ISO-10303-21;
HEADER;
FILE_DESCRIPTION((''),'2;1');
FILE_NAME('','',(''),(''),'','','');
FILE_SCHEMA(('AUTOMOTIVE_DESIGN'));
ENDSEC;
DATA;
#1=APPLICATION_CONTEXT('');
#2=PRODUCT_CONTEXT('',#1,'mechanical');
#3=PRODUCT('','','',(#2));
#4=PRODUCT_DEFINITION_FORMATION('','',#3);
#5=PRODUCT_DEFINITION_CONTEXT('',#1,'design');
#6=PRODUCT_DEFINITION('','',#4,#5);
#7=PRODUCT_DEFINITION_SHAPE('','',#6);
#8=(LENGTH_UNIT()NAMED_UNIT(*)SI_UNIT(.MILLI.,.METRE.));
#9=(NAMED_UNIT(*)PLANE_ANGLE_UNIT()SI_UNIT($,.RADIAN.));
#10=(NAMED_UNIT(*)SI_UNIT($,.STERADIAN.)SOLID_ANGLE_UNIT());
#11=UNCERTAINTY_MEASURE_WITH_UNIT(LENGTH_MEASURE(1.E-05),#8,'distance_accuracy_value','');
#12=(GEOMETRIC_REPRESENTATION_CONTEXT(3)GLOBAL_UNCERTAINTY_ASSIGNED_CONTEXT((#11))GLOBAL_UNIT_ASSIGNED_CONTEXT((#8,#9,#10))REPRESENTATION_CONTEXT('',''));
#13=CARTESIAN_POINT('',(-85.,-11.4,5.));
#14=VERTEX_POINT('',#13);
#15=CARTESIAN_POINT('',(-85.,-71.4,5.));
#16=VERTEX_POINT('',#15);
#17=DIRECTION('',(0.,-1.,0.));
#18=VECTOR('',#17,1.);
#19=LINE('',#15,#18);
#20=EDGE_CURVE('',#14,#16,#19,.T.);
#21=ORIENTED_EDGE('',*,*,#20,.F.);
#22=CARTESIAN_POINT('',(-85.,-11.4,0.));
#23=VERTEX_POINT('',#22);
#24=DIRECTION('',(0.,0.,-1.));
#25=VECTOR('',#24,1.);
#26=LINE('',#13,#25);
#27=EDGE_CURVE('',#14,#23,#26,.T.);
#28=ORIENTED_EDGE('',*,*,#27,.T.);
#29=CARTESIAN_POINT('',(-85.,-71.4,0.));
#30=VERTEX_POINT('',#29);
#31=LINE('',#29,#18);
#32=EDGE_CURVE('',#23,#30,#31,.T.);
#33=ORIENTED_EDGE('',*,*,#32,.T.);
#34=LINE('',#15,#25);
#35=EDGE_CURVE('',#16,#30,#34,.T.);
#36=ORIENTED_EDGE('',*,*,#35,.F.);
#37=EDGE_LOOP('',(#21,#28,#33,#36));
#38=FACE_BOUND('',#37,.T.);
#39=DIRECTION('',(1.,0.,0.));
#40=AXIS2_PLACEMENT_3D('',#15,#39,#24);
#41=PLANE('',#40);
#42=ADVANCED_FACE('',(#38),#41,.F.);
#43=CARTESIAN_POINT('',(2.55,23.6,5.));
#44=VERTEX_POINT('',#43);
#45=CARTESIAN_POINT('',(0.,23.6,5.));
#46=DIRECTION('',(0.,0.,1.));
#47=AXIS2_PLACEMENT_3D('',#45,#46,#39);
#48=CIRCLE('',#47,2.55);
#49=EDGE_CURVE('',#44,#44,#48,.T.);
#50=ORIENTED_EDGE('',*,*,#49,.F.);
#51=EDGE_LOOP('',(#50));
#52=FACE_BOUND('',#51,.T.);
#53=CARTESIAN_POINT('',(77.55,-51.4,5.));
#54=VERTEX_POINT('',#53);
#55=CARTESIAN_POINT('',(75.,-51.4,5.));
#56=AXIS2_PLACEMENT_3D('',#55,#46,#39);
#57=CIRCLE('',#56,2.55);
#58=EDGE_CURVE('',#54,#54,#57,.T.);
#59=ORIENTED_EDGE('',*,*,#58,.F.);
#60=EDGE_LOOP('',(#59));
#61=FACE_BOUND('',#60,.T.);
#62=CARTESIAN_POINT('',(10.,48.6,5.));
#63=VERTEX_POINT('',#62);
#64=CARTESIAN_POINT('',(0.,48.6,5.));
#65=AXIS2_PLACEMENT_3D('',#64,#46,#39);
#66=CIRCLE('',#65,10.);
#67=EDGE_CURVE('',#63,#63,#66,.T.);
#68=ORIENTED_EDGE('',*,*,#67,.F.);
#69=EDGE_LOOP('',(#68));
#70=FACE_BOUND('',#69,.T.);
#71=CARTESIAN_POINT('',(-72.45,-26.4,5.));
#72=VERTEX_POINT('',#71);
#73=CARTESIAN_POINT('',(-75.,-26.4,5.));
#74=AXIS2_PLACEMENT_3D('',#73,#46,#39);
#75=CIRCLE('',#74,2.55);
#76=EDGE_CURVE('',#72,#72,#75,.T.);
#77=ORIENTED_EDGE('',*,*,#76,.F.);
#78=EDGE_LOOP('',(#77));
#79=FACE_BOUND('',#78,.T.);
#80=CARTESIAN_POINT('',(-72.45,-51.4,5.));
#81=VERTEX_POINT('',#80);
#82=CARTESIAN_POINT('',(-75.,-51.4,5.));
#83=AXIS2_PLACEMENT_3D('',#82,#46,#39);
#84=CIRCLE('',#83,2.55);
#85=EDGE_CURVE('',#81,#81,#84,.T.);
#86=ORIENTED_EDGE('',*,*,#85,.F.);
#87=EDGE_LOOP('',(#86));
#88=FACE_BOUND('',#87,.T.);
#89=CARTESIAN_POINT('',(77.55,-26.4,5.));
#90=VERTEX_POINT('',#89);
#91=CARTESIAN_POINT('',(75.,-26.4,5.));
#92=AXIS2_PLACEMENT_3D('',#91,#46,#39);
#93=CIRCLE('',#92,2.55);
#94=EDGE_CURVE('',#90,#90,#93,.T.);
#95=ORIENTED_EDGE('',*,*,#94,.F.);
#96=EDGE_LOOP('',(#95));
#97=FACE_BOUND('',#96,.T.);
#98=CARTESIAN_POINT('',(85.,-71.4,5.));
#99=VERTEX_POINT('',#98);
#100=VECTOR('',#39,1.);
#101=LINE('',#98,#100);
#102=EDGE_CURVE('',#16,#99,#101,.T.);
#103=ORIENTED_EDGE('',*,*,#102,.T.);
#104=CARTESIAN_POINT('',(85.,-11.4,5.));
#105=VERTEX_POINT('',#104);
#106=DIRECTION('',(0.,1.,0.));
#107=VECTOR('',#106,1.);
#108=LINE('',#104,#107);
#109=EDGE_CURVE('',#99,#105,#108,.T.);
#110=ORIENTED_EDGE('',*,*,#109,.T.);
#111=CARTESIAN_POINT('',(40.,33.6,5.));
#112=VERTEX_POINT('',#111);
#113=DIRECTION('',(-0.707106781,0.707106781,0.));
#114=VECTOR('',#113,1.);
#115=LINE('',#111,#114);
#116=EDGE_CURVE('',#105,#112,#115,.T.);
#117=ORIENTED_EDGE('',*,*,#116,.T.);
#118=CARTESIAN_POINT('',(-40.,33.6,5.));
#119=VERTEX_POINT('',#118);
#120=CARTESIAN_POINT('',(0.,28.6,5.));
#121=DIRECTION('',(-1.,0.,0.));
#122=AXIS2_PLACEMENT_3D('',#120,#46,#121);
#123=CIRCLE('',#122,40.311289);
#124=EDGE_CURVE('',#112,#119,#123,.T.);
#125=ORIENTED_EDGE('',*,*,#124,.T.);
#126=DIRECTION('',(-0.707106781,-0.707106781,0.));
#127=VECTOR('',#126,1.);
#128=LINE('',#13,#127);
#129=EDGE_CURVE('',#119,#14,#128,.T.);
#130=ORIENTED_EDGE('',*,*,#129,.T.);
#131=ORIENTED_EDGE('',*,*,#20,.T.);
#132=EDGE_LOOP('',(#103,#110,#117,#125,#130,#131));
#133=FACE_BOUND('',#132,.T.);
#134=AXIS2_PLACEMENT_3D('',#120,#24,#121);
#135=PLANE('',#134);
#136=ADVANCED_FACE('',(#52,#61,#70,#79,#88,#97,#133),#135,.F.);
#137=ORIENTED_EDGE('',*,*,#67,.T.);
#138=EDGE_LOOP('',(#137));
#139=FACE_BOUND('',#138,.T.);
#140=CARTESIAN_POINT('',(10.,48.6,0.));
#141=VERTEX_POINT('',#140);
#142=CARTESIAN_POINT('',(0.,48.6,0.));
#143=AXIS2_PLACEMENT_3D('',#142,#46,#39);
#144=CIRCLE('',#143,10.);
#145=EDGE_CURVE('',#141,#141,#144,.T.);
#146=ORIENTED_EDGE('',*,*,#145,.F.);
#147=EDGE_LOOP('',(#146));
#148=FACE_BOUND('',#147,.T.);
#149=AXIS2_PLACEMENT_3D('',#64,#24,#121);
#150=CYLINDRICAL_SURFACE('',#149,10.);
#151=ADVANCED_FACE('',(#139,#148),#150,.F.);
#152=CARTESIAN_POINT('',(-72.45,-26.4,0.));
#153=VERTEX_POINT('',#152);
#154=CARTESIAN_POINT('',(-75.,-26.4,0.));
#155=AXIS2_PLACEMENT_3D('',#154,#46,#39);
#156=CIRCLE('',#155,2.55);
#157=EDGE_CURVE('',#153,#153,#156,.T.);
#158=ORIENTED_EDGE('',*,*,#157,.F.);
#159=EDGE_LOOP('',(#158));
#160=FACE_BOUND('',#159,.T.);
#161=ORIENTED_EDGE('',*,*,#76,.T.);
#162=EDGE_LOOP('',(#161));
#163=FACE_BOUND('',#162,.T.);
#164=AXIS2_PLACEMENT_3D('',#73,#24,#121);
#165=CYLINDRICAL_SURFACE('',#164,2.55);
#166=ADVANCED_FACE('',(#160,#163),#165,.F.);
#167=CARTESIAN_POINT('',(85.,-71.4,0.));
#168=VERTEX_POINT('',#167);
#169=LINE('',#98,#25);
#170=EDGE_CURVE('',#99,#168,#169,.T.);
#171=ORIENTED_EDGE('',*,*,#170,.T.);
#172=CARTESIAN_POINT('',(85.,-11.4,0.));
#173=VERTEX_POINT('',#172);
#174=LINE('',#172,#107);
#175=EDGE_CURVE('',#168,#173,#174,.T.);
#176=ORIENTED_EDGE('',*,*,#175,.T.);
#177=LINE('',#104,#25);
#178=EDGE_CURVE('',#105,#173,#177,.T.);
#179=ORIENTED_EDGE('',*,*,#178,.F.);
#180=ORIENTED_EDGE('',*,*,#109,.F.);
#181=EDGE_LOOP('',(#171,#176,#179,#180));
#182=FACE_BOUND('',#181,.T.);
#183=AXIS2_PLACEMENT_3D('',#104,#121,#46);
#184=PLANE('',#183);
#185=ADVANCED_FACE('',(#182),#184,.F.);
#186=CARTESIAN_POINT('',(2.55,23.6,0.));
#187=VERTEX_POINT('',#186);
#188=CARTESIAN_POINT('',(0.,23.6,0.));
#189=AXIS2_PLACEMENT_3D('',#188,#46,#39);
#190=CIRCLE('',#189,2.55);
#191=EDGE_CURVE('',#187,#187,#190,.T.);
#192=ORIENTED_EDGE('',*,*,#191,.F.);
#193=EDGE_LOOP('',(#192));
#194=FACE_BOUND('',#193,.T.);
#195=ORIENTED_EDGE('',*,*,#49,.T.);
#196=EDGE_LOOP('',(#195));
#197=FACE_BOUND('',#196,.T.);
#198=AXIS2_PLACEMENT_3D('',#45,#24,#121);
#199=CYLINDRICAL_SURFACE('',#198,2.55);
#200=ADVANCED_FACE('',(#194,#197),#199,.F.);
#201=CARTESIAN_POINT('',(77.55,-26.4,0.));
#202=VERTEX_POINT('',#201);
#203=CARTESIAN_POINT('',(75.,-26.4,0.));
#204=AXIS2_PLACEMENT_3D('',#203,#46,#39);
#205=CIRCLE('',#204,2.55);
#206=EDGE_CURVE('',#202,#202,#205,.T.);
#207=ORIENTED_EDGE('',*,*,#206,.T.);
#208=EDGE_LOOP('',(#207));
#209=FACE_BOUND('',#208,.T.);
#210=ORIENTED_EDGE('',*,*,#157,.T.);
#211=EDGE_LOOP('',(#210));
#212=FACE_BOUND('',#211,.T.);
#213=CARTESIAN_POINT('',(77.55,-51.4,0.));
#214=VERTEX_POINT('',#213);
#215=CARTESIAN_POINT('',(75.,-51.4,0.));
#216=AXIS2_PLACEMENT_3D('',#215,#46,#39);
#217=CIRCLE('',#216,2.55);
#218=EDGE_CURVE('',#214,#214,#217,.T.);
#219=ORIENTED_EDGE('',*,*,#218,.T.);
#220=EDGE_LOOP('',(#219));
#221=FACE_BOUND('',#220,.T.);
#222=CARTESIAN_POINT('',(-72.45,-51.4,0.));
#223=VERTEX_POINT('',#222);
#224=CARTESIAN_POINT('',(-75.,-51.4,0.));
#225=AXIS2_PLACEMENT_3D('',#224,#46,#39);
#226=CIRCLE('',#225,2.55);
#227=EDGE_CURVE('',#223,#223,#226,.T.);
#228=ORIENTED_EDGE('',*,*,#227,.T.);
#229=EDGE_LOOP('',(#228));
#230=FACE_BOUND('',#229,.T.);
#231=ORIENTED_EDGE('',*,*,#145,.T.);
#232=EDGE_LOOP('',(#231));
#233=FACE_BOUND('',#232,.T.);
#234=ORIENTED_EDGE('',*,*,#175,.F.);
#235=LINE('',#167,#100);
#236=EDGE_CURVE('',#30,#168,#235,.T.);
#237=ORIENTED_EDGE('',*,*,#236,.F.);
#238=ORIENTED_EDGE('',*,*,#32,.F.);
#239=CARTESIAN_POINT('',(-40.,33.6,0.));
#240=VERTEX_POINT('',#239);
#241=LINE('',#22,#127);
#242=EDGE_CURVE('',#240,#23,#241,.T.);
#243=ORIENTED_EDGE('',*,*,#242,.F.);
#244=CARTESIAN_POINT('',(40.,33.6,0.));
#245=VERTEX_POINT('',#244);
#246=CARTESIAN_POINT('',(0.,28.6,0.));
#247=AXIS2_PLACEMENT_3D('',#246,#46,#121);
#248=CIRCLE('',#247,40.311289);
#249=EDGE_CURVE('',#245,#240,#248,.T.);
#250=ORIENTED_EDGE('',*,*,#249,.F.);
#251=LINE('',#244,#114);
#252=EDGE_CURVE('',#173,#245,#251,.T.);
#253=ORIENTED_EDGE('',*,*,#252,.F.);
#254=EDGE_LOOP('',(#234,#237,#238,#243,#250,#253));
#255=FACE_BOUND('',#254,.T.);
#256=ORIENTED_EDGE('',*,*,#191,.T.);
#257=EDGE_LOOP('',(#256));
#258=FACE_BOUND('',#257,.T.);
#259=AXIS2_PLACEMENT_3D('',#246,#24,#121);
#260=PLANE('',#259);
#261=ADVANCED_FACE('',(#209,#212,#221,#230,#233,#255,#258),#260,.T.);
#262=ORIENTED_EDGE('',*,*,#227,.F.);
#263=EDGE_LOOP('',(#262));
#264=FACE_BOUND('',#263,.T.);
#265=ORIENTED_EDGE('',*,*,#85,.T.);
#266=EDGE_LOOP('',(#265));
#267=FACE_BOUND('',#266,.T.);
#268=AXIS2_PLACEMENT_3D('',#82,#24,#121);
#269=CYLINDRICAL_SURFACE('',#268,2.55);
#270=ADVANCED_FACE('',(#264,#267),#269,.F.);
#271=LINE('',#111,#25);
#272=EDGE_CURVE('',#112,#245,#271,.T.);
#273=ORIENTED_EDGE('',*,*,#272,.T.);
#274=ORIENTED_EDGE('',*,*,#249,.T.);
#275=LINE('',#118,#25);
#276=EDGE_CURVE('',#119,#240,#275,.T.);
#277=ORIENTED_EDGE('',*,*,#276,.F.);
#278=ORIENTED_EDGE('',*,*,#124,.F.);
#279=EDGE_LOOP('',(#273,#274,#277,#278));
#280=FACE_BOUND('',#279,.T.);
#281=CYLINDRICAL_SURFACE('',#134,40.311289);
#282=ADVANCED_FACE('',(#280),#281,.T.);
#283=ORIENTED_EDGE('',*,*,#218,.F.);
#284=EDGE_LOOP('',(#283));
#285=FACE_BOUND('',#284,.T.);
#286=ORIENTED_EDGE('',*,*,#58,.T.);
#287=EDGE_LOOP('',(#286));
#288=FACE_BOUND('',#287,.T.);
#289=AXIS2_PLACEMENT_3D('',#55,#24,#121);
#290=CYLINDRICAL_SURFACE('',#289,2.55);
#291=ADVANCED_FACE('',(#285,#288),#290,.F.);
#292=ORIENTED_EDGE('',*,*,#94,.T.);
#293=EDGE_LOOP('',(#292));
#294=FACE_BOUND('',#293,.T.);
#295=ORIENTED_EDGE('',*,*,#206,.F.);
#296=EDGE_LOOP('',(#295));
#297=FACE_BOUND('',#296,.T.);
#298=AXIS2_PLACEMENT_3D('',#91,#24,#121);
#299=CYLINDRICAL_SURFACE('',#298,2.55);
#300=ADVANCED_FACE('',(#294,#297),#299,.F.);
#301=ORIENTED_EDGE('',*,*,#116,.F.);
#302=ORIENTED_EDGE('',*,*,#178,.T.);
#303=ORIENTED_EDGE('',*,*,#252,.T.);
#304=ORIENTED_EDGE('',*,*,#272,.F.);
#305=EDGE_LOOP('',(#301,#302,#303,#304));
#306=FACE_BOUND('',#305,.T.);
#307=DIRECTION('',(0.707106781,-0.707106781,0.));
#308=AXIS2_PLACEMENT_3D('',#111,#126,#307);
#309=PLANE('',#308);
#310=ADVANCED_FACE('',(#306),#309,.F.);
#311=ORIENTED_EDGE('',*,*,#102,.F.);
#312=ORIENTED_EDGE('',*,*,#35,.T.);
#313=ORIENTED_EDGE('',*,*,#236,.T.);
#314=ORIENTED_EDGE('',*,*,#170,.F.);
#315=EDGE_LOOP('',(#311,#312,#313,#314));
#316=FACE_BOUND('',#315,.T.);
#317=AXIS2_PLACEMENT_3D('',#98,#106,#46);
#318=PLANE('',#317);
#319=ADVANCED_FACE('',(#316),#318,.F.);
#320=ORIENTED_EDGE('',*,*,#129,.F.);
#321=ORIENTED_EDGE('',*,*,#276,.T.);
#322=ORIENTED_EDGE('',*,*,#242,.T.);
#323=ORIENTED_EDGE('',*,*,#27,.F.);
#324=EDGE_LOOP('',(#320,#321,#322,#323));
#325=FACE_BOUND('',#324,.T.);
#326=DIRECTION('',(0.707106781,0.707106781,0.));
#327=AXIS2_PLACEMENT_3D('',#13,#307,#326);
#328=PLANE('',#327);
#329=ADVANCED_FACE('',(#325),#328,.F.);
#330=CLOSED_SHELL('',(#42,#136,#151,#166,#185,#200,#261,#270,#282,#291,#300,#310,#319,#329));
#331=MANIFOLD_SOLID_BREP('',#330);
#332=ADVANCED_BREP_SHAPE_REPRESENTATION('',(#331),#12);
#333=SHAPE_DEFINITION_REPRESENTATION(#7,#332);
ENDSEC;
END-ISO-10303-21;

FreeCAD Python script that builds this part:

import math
import FreeCAD as App
import Part
import Sketcher

V = App.Vector
Q = App.Units.Quantity

doc = App.newDocument("Part")
body = doc.addObject("PartDesign::Body", "Body")

# Sketch on XY plane
sketch1 = doc.addObject("Sketcher::SketchObject", "Sketch")
body.addObject(sketch1)
sketch1.AttachmentSupport = (doc.XY_Plane, [""])
sketch1.MapMode = "FlatFace"
sketch1.addGeometry(Part.LineSegment(V(-85, -11.4, 0), V(-85, -71.4, 0)), False)
sketch1.addGeometry(Part.LineSegment(V(-85, -71.4, 0), V(85, -71.4, 0)), False)
sketch1.addGeometry(Part.LineSegment(V(85, -71.4, 0), V(85, -11.4, 0)), False)
sketch1.addGeometry(Part.LineSegment(V(85, -11.4, 0), V(40, 33.6, 0)), False)
sketch1.addGeometry(Part.ArcOfCircle(Part.Circle(V(0, 28.6, 0), V(0, 0, 1), 40.311289), math.radians(7.125016), math.radians(172.874984)), False)
sketch1.addGeometry(Part.LineSegment(V(-40, 33.6, 0), V(-85, -11.4, 0)), False)
sketch1.addGeometry(Part.Circle(V(75, -51.4, 0), V(0, 0, 1), 2.55), False)
sketch1.addGeometry(Part.Circle(V(75, -26.4, 0), V(0, 0, 1), 2.55), False)
sketch1.addGeometry(Part.Circle(V(-75, -51.4, 0), V(0, 0, 1), 2.55), False)
sketch1.addGeometry(Part.Circle(V(-75, -26.4, 0), V(0, 0, 1), 2.55), False)
sketch1.addGeometry(Part.Circle(V(0, 23.6, 0), V(0, 0, 1), 2.55), False)
sketch1.addGeometry(Part.Circle(V(0, 48.6, 0), V(0, 0, 1), 10), False)
sketch1.addConstraint(Sketcher.Constraint("Coincident", 0, 2, 1, 1))
sketch1.addConstraint(Sketcher.Constraint("Coincident", 1, 2, 2, 1))
sketch1.addConstraint(Sketcher.Constraint("Coincident", 2, 2, 3, 1))
sketch1.addConstraint(Sketcher.Constraint("Coincident", 3, 2, 4, 1))
sketch1.addConstraint(Sketcher.Constraint("Coincident", 4, 2, 5, 1))
sketch1.addConstraint(Sketcher.Constraint("Coincident", 5, 2, 0, 1))
sketch1.addConstraint(Sketcher.Constraint("Vertical", 0))
sketch1.addConstraint(Sketcher.Constraint("Horizontal", 1))
sketch1.addConstraint(Sketcher.Constraint("Vertical", 2))
sketch1.addConstraint(Sketcher.Constraint("Equal", 6, 7))
sketch1.addConstraint(Sketcher.Constraint("Equal", 7, 8))
sketch1.addConstraint(Sketcher.Constraint("Equal", 8, 9))
sketch1.addConstraint(Sketcher.Constraint("Equal", 9, 10))
sketch1.addConstraint(Sketcher.Constraint("Symmetric", 6, 3, 8, 3, -2))
sketch1.addConstraint(Sketcher.Constraint("Symmetric", 7, 3, 9, 3, -2))
sketch1.addConstraint(Sketcher.Constraint("Symmetric", 3, 2, 4, 2, -2))
sketch1.addConstraint(Sketcher.Constraint("Symmetric", 2, 2, 5, 2, -2))
sketch1.addConstraint(Sketcher.Constraint("PointOnObject", 10, 3, -2))
sketch1.addConstraint(Sketcher.Constraint("PointOnObject", 11, 3, -2))
sketch1.addConstraint(Sketcher.Constraint("Perpendicular", 3, 5))
sketch1.addConstraint(Sketcher.Constraint("Vertical", 6, 3, 7, 3))
sketch1.addConstraint(Sketcher.Constraint("Diameter", 11, Q("20 mm")))
sketch1.addConstraint(Sketcher.Constraint("Diameter", 6, Q("5.1 mm")))
sketch1.addConstraint(Sketcher.Constraint("DistanceX", 1, 1, 1, 2, Q("170 mm")))
sketch1.addConstraint(Sketcher.Constraint("DistanceY", 0, 2, 0, 1, Q("60 mm")))
sketch1.addConstraint(Sketcher.Constraint("DistanceX", -1, 1, 6, 3, Q("75 mm")))
sketch1.addConstraint(Sketcher.Constraint("DistanceX", -1, 1, 3, 2, Q("40 mm")))
sketch1.addConstraint(Sketcher.Constraint("DistanceY", 6, 3, 4, 3, Q("80 mm")))
sketch1.addConstraint(Sketcher.Constraint("DistanceY", 6, 3, 7, 3, Q("25 mm")))
sketch1.addConstraint(Sketcher.Constraint("DistanceY", 10, 3, 4, 3, Q("5 mm")))
sketch1.addConstraint(Sketcher.Constraint("DistanceY", 4, 3, 11, 3, Q("20 mm")))
sketch1.addConstraint(Sketcher.Constraint("DistanceY", 0, 2, 8, 3, Q("20 mm")))
sketch1.addConstraint(Sketcher.Constraint("DistanceY", -1, 1, 4, 3, Q("28.6 mm")))
pad1 = doc.addObject("PartDesign::Pad", "Pad")
body.addObject(pad1)
pad1.Profile = sketch1
pad1.Length = 5

doc.recompute()
